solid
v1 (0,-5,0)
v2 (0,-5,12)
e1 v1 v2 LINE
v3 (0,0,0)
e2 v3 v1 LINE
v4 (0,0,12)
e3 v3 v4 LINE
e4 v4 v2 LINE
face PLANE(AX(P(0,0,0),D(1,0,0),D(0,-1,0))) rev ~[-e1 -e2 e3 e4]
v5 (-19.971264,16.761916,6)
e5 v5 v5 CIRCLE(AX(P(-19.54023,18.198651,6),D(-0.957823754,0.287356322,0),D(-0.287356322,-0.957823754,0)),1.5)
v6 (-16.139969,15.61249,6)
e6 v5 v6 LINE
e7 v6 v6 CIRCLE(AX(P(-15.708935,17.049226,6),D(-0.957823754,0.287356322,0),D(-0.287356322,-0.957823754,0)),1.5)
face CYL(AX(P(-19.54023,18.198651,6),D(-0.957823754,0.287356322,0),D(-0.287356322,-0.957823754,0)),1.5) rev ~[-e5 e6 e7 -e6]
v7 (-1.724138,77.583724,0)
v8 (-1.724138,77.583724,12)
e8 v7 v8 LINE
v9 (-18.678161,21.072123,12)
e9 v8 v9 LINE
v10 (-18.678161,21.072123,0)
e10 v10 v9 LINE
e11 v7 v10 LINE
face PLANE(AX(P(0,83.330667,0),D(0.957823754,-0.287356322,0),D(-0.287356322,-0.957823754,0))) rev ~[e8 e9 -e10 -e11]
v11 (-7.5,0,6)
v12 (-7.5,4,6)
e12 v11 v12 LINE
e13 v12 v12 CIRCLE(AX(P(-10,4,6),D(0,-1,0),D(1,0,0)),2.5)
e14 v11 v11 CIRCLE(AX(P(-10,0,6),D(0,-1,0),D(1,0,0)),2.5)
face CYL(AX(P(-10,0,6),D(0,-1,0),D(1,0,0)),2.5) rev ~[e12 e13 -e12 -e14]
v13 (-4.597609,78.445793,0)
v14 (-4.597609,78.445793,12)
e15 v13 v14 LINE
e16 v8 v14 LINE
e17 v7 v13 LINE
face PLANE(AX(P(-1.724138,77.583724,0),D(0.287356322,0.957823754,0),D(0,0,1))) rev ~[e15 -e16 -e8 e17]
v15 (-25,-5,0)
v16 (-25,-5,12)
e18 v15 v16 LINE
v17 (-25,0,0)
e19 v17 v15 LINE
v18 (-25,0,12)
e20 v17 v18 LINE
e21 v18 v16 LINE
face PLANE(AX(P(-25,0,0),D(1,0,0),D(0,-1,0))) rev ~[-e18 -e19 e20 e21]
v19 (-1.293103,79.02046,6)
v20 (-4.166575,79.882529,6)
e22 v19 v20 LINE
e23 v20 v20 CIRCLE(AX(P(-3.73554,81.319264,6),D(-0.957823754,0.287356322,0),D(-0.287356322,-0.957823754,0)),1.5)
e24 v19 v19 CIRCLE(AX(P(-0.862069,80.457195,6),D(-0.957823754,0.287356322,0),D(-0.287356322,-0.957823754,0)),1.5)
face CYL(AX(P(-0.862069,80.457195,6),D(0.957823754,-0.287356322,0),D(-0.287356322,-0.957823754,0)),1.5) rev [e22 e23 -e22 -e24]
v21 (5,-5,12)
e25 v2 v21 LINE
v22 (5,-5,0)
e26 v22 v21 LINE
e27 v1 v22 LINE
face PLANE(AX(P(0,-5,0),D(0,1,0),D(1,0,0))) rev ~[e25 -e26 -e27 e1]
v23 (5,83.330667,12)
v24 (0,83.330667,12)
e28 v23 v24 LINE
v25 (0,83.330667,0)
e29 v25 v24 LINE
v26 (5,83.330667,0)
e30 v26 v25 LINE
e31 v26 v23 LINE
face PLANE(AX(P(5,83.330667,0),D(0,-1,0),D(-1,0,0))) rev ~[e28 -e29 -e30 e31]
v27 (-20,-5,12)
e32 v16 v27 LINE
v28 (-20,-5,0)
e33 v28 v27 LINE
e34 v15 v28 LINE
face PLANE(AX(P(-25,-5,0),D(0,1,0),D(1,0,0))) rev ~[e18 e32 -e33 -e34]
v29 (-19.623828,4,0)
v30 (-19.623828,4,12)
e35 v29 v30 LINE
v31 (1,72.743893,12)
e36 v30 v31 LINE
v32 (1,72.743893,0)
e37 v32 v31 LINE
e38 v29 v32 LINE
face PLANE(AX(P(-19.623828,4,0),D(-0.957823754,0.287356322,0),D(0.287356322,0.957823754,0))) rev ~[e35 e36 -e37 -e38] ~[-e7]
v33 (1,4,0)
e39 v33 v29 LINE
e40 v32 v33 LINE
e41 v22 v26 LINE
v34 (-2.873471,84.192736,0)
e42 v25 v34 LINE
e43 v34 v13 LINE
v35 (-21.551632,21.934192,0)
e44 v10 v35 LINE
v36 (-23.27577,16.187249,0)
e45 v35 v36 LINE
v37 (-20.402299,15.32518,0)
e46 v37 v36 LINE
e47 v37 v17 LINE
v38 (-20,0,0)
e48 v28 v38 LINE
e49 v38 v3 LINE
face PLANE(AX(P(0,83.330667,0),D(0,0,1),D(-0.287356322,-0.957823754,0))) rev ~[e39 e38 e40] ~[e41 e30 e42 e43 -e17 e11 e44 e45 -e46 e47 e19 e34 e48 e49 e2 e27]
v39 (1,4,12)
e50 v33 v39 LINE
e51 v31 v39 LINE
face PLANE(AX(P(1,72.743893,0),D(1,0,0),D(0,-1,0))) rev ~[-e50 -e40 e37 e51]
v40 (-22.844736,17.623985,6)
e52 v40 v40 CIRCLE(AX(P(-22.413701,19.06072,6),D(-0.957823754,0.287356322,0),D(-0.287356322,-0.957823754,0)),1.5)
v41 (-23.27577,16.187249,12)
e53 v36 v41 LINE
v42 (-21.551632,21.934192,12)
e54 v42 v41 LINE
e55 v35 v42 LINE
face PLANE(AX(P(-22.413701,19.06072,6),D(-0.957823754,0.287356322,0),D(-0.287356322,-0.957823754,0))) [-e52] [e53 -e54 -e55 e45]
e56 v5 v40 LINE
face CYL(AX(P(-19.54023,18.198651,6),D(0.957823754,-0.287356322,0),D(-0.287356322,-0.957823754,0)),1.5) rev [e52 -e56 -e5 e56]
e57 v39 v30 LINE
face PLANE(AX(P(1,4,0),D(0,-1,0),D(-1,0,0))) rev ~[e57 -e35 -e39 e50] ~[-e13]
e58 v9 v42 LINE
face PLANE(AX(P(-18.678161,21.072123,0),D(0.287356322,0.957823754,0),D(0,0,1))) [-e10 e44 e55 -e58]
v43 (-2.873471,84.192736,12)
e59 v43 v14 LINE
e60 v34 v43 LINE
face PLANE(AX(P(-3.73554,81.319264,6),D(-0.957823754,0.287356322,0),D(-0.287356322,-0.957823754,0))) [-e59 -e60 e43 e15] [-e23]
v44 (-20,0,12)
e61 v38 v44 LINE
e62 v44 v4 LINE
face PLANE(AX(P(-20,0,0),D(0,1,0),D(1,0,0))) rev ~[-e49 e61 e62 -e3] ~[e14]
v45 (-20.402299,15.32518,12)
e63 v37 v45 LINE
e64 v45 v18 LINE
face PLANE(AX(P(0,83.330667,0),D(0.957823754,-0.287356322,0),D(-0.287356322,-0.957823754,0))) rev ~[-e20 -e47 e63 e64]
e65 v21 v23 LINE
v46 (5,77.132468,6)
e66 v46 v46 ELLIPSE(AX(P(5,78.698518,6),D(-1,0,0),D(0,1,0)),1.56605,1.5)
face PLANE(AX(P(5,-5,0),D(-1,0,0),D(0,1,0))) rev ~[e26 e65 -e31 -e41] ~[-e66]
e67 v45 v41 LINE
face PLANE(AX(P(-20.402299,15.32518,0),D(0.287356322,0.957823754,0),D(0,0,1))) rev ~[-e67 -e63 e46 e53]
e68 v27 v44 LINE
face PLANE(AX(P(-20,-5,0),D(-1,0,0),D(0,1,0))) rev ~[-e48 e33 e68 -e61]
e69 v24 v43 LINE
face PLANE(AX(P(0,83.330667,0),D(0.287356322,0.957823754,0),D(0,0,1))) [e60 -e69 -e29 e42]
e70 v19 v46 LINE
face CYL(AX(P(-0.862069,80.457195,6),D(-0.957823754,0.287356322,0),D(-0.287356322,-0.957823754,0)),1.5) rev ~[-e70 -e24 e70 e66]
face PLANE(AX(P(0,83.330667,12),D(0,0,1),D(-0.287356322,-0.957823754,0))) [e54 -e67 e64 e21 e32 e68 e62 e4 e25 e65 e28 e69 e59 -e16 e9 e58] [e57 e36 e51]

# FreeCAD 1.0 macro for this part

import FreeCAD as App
import Part
import Sketcher
from FreeCAD import Vector

doc = App.newDocument("Part")
body = doc.addObject("PartDesign::Body", "Body")

sketch1 = body.newObject("Sketcher::SketchObject", "Sketch")
sketch1.AttachmentSupport = (doc.getObject("XY_Plane"), [""])
sketch1.MapMode = "FlatFace"
sketch1.addGeometry(Part.LineSegment(Vector(-20, -5, 0), Vector(-20, 0, 0)), False)
sketch1.addGeometry(Part.LineSegment(Vector(-20, 0, 0), Vector(0, 0, 0)), False)
sketch1.addGeometry(Part.LineSegment(Vector(0, 0, 0), Vector(0, -5, 0)), False)
sketch1.addGeometry(Part.LineSegment(Vector(0, -5, 0), Vector(5, -5, 0)), False)
sketch1.addGeometry(Part.LineSegment(Vector(5, -5, 0), Vector(5, 83.330667, 0)), False)
sketch1.addGeometry(Part.LineSegment(Vector(5, 83.330667, 0), Vector(0, 83.330667, 0)), False)
sketch1.addGeometry(Part.LineSegment(Vector(0, 83.330667, 0), Vector(-25, 0, 0)), False)
sketch1.addGeometry(Part.LineSegment(Vector(-25, 0, 0), Vector(-25, -5, 0)), False)
sketch1.addGeometry(Part.LineSegment(Vector(-25, -5, 0), Vector(-20, -5, 0)), False)
sketch1.addGeometry(Part.LineSegment(Vector(1, 72.743893, 0), Vector(1, 4, 0)), False)
sketch1.addGeometry(Part.LineSegment(Vector(1, 4, 0), Vector(-19.623828, 4, 0)), False)
sketch1.addGeometry(Part.LineSegment(Vector(-19.623828, 4, 0), Vector(1, 72.743893, 0)), False)
sketch1.addConstraint(Sketcher.Constraint("Coincident", 0, 2, 1, 1))
sketch1.addConstraint(Sketcher.Constraint("Coincident", 1, 2, 2, 1))
sketch1.addConstraint(Sketcher.Constraint("Coincident", 2, 2, 3, 1))
sketch1.addConstraint(Sketcher.Constraint("Coincident", 3, 2, 4, 1))
sketch1.addConstraint(Sketcher.Constraint("Coincident", 4, 2, 5, 1))
sketch1.addConstraint(Sketcher.Constraint("Coincident", 5, 2, 6, 1))
sketch1.addConstraint(Sketcher.Constraint("Coincident", 6, 2, 7, 1))
sketch1.addConstraint(Sketcher.Constraint("Coincident", 7, 2, 8, 1))
sketch1.addConstraint(Sketcher.Constraint("Coincident", 8, 2, 0, 1))
sketch1.addConstraint(Sketcher.Constraint("Coincident", 9, 2, 10, 1))
sketch1.addConstraint(Sketcher.Constraint("Coincident", 10, 2, 11, 1))
sketch1.addConstraint(Sketcher.Constraint("Coincident", 11, 2, 9, 1))
sketch1.addConstraint(Sketcher.Constraint("Vertical", 0))
sketch1.addConstraint(Sketcher.Constraint("Horizontal", 1))
sketch1.addConstraint(Sketcher.Constraint("Vertical", 2))
sketch1.addConstraint(Sketcher.Constraint("Horizontal", 3))
sketch1.addConstraint(Sketcher.Constraint("Vertical", 4))
sketch1.addConstraint(Sketcher.Constraint("Horizontal", 5))
sketch1.addConstraint(Sketcher.Constraint("Vertical", 7))
sketch1.addConstraint(Sketcher.Constraint("Horizontal", 8))
sketch1.addConstraint(Sketcher.Constraint("Vertical", 9))
sketch1.addConstraint(Sketcher.Constraint("Horizontal", 10))
sketch1.addConstraint(Sketcher.Constraint("Coincident", 1, 2, -1, 1))
sketch1.addConstraint(Sketcher.Constraint("PointOnObject", 5, 2, -2))
sketch1.addConstraint(Sketcher.Constraint("PointOnObject", 6, 2, -1))
sketch1.addConstraint(Sketcher.Constraint("Parallel", 6, 11))
sketch1.addConstraint(Sketcher.Constraint("Horizontal", 3, 2, 7, 2))
sketch1.addConstraint(Sketcher.Constraint("Equal", 5, 8))
sketch1.addConstraint(Sketcher.Constraint("Equal", 8, 0))
sketch1.addConstraint(Sketcher.Constraint("DistanceX", 1, 1, 1, 2, 20.0))
sketch1.addConstraint(Sketcher.Constraint("DistanceX", 3, 1, 3, 2, 5.0))
sketch1.addConstraint(Sketcher.Constraint("Distance", 6, 87.0))
sketch1.addConstraint(Sketcher.Constraint("DistanceX", -1, 1, 9, 2, 1.0))
sketch1.addConstraint(Sketcher.Constraint("DistanceY", -1, 1, 9, 2, 4.0))
sketch1.addConstraint(Sketcher.Constraint("Distance", 11, 71.770921))
pad1 = body.newObject("PartDesign::Pad", "Pad")
pad1.Profile = sketch1
pad1.Length = 12

sketch2 = body.newObject("Sketcher::SketchObject", "Sketch001")
sketch2.AttachmentSupport = (doc.getObject("XZ_Plane"), [""])
sketch2.MapMode = "FlatFace"
sketch2.addGeometry(Part.Circle(Vector(-10, 6, 0), Vector(0, 0, 1), 2.5), False)
sketch2.addConstraint(Sketcher.Constraint("Diameter", 0, 5.0))
sketch2.addConstraint(Sketcher.Constraint("DistanceX", 0, 3, -1, 1, 10.0))
sketch2.addConstraint(Sketcher.Constraint("DistanceY", -1, 1, 0, 3, 6.0))
pocket1 = body.newObject("PartDesign::Pocket", "Pocket")
pocket1.Profile = sketch2
pocket1.Length = 4

sketch3 = body.newObject("Sketcher::SketchObject", "Sketch002")
sketch3.Placement = App.Placement(Vector(-22.935659, 6.880918, 0), App.Rotation(Vector(-0.287356322, -0.957823754, 0), Vector(0, 0, 1), Vector(-0.957823754, 0.287356322, 0), "ZXY"))
sketch3.addGeometry(Part.LineSegment(Vector(-79.816092, 12, 0), Vector(-79.816092, 0, 0)), False)
sketch3.addGeometry(Part.LineSegment(Vector(-79.816092, 0, 0), Vector(-73.816092, 0, 0)), False)
sketch3.addGeometry(Part.LineSegment(Vector(-73.816092, 0, 0), Vector(-73.816092, 12, 0)), False)
sketch3.addGeometry(Part.LineSegment(Vector(-73.816092, 12, 0), Vector(-79.816092, 12, 0)), False)
sketch3.addGeometry(Part.Circle(Vector(-76.816092, 6, 0), Vector(0, 0, 1), 1.5), False)
sketch3.addGeometry(Part.LineSegment(Vector(-14.816092, 12, 0), Vector(-14.816092, 0, 0)), False)
sketch3.addGeometry(Part.LineSegment(Vector(-14.816092, 0, 0), Vector(-8.816092, 0, 0)), False)
sketch3.addGeometry(Part.LineSegment(Vector(-8.816092, 0, 0), Vector(-8.816092, 12, 0)), False)
sketch3.addGeometry(Part.LineSegment(Vector(-8.816092, 12, 0), Vector(-14.816092, 12, 0)), False)
sketch3.addGeometry(Part.Circle(Vector(-11.816092, 6, 0), Vector(0, 0, 1), 1.5), False)
sketch3.addConstraint(Sketcher.Constraint("Coincident", 0, 2, 1, 1))
sketch3.addConstraint(Sketcher.Constraint("Coincident", 1, 2, 2, 1))
sketch3.addConstraint(Sketcher.Constraint("Coincident", 2, 2, 3, 1))
sketch3.addConstraint(Sketcher.Constraint("Coincident", 3, 2, 0, 1))
sketch3.addConstraint(Sketcher.Constraint("Coincident", 5, 2, 6, 1))
sketch3.addConstraint(Sketcher.Constraint("Coincident", 6, 2, 7, 1))
sketch3.addConstraint(Sketcher.Constraint("Coincident", 7, 2, 8, 1))
sketch3.addConstraint(Sketcher.Constraint("Coincident", 8, 2, 5, 1))
sketch3.addConstraint(Sketcher.Constraint("Vertical", 0))
sketch3.addConstraint(Sketcher.Constraint("Horizontal", 1))
sketch3.addConstraint(Sketcher.Constraint("Vertical", 2))
sketch3.addConstraint(Sketcher.Constraint("Horizontal", 3))
sketch3.addConstraint(Sketcher.Constraint("Vertical", 5))
sketch3.addConstraint(Sketcher.Constraint("Horizontal", 6))
sketch3.addConstraint(Sketcher.Constraint("Vertical", 7))
sketch3.addConstraint(Sketcher.Constraint("Horizontal", 8))
sketch3.addConstraint(Sketcher.Constraint("Equal", 4, 9))
sketch3.addConstraint(Sketcher.Constraint("PointOnObject", 0, 2, -1))
sketch3.addConstraint(Sketcher.Constraint("PointOnObject", 5, 2, -1))
sketch3.addConstraint(Sketcher.Constraint("Horizontal", 4, 3, 9, 3))
sketch3.addConstraint(Sketcher.Constraint("Horizontal", 3, 2, 7, 2))
sketch3.addConstraint(Sketcher.Constraint("Equal", 3, 6))
sketch3.addConstraint(Sketcher.Constraint("Diameter", 4, 3.0))
sketch3.addConstraint(Sketcher.Constraint("DistanceX", 1, 1, 1, 2, 6.0))
sketch3.addConstraint(Sketcher.Constraint("DistanceY", 0, 2, 0, 1, 12.0))
sketch3.addConstraint(Sketcher.Constraint("DistanceY", -1, 1, 4, 3, 6.0))
sketch3.addConstraint(Sketcher.Constraint("DistanceX", 4, 3, 9, 3, 65.0))
sketch3.addConstraint(Sketcher.Constraint("DistanceX", 0, 2, 4, 3, 3.0))
sketch3.addConstraint(Sketcher.Constraint("DistanceX", 5, 2, 9, 3, 3.0))
sketch3.addConstraint(Sketcher.Constraint("DistanceX", 4, 3, -1, 1, 76.816092))
pad2 = body.newObject("PartDesign::Pad", "Pad001")
pad2.Profile = sketch3
pad2.Length = 3

sketch4 = body.newObject("Sketcher::SketchObject", "Sketch003")
sketch4.Placement = App.Placement(Vector(-22.935659, 6.880918, 0), App.Rotation(Vector(-0.287356322, -0.957823754, 0), Vector(0, 0, 1), Vector(-0.957823754, 0.287356322, 0), "ZXY"))
sketch4.addGeometry(Part.Circle(Vector(-76.816092, 6, 0), Vector(0, 0, 1), 1.5), False)
sketch4.addGeometry(Part.Circle(Vector(-11.816092, 6, 0), Vector(0, 0, 1), 1.5), False)
sketch4.addConstraint(Sketcher.Constraint("Equal", 0, 1))
sketch4.addConstraint(Sketcher.Constraint("Horizontal", 0, 3, 1, 3))
sketch4.addConstraint(Sketcher.Constraint("Diameter", 0, 3.0))
sketch4.addConstraint(Sketcher.Constraint("DistanceY", -1, 1, 0, 3, 6.0))
sketch4.addConstraint(Sketcher.Constraint("DistanceX", 0, 3, 1, 3, 65.0))
sketch4.addConstraint(Sketcher.Constraint("DistanceX", 0, 3, -1, 1, 76.816092))
pocket2 = body.newObject("PartDesign::Pocket", "Pocket001")
pocket2.Profile = sketch4
pocket2.Length = 6.57121

doc.recompute()
